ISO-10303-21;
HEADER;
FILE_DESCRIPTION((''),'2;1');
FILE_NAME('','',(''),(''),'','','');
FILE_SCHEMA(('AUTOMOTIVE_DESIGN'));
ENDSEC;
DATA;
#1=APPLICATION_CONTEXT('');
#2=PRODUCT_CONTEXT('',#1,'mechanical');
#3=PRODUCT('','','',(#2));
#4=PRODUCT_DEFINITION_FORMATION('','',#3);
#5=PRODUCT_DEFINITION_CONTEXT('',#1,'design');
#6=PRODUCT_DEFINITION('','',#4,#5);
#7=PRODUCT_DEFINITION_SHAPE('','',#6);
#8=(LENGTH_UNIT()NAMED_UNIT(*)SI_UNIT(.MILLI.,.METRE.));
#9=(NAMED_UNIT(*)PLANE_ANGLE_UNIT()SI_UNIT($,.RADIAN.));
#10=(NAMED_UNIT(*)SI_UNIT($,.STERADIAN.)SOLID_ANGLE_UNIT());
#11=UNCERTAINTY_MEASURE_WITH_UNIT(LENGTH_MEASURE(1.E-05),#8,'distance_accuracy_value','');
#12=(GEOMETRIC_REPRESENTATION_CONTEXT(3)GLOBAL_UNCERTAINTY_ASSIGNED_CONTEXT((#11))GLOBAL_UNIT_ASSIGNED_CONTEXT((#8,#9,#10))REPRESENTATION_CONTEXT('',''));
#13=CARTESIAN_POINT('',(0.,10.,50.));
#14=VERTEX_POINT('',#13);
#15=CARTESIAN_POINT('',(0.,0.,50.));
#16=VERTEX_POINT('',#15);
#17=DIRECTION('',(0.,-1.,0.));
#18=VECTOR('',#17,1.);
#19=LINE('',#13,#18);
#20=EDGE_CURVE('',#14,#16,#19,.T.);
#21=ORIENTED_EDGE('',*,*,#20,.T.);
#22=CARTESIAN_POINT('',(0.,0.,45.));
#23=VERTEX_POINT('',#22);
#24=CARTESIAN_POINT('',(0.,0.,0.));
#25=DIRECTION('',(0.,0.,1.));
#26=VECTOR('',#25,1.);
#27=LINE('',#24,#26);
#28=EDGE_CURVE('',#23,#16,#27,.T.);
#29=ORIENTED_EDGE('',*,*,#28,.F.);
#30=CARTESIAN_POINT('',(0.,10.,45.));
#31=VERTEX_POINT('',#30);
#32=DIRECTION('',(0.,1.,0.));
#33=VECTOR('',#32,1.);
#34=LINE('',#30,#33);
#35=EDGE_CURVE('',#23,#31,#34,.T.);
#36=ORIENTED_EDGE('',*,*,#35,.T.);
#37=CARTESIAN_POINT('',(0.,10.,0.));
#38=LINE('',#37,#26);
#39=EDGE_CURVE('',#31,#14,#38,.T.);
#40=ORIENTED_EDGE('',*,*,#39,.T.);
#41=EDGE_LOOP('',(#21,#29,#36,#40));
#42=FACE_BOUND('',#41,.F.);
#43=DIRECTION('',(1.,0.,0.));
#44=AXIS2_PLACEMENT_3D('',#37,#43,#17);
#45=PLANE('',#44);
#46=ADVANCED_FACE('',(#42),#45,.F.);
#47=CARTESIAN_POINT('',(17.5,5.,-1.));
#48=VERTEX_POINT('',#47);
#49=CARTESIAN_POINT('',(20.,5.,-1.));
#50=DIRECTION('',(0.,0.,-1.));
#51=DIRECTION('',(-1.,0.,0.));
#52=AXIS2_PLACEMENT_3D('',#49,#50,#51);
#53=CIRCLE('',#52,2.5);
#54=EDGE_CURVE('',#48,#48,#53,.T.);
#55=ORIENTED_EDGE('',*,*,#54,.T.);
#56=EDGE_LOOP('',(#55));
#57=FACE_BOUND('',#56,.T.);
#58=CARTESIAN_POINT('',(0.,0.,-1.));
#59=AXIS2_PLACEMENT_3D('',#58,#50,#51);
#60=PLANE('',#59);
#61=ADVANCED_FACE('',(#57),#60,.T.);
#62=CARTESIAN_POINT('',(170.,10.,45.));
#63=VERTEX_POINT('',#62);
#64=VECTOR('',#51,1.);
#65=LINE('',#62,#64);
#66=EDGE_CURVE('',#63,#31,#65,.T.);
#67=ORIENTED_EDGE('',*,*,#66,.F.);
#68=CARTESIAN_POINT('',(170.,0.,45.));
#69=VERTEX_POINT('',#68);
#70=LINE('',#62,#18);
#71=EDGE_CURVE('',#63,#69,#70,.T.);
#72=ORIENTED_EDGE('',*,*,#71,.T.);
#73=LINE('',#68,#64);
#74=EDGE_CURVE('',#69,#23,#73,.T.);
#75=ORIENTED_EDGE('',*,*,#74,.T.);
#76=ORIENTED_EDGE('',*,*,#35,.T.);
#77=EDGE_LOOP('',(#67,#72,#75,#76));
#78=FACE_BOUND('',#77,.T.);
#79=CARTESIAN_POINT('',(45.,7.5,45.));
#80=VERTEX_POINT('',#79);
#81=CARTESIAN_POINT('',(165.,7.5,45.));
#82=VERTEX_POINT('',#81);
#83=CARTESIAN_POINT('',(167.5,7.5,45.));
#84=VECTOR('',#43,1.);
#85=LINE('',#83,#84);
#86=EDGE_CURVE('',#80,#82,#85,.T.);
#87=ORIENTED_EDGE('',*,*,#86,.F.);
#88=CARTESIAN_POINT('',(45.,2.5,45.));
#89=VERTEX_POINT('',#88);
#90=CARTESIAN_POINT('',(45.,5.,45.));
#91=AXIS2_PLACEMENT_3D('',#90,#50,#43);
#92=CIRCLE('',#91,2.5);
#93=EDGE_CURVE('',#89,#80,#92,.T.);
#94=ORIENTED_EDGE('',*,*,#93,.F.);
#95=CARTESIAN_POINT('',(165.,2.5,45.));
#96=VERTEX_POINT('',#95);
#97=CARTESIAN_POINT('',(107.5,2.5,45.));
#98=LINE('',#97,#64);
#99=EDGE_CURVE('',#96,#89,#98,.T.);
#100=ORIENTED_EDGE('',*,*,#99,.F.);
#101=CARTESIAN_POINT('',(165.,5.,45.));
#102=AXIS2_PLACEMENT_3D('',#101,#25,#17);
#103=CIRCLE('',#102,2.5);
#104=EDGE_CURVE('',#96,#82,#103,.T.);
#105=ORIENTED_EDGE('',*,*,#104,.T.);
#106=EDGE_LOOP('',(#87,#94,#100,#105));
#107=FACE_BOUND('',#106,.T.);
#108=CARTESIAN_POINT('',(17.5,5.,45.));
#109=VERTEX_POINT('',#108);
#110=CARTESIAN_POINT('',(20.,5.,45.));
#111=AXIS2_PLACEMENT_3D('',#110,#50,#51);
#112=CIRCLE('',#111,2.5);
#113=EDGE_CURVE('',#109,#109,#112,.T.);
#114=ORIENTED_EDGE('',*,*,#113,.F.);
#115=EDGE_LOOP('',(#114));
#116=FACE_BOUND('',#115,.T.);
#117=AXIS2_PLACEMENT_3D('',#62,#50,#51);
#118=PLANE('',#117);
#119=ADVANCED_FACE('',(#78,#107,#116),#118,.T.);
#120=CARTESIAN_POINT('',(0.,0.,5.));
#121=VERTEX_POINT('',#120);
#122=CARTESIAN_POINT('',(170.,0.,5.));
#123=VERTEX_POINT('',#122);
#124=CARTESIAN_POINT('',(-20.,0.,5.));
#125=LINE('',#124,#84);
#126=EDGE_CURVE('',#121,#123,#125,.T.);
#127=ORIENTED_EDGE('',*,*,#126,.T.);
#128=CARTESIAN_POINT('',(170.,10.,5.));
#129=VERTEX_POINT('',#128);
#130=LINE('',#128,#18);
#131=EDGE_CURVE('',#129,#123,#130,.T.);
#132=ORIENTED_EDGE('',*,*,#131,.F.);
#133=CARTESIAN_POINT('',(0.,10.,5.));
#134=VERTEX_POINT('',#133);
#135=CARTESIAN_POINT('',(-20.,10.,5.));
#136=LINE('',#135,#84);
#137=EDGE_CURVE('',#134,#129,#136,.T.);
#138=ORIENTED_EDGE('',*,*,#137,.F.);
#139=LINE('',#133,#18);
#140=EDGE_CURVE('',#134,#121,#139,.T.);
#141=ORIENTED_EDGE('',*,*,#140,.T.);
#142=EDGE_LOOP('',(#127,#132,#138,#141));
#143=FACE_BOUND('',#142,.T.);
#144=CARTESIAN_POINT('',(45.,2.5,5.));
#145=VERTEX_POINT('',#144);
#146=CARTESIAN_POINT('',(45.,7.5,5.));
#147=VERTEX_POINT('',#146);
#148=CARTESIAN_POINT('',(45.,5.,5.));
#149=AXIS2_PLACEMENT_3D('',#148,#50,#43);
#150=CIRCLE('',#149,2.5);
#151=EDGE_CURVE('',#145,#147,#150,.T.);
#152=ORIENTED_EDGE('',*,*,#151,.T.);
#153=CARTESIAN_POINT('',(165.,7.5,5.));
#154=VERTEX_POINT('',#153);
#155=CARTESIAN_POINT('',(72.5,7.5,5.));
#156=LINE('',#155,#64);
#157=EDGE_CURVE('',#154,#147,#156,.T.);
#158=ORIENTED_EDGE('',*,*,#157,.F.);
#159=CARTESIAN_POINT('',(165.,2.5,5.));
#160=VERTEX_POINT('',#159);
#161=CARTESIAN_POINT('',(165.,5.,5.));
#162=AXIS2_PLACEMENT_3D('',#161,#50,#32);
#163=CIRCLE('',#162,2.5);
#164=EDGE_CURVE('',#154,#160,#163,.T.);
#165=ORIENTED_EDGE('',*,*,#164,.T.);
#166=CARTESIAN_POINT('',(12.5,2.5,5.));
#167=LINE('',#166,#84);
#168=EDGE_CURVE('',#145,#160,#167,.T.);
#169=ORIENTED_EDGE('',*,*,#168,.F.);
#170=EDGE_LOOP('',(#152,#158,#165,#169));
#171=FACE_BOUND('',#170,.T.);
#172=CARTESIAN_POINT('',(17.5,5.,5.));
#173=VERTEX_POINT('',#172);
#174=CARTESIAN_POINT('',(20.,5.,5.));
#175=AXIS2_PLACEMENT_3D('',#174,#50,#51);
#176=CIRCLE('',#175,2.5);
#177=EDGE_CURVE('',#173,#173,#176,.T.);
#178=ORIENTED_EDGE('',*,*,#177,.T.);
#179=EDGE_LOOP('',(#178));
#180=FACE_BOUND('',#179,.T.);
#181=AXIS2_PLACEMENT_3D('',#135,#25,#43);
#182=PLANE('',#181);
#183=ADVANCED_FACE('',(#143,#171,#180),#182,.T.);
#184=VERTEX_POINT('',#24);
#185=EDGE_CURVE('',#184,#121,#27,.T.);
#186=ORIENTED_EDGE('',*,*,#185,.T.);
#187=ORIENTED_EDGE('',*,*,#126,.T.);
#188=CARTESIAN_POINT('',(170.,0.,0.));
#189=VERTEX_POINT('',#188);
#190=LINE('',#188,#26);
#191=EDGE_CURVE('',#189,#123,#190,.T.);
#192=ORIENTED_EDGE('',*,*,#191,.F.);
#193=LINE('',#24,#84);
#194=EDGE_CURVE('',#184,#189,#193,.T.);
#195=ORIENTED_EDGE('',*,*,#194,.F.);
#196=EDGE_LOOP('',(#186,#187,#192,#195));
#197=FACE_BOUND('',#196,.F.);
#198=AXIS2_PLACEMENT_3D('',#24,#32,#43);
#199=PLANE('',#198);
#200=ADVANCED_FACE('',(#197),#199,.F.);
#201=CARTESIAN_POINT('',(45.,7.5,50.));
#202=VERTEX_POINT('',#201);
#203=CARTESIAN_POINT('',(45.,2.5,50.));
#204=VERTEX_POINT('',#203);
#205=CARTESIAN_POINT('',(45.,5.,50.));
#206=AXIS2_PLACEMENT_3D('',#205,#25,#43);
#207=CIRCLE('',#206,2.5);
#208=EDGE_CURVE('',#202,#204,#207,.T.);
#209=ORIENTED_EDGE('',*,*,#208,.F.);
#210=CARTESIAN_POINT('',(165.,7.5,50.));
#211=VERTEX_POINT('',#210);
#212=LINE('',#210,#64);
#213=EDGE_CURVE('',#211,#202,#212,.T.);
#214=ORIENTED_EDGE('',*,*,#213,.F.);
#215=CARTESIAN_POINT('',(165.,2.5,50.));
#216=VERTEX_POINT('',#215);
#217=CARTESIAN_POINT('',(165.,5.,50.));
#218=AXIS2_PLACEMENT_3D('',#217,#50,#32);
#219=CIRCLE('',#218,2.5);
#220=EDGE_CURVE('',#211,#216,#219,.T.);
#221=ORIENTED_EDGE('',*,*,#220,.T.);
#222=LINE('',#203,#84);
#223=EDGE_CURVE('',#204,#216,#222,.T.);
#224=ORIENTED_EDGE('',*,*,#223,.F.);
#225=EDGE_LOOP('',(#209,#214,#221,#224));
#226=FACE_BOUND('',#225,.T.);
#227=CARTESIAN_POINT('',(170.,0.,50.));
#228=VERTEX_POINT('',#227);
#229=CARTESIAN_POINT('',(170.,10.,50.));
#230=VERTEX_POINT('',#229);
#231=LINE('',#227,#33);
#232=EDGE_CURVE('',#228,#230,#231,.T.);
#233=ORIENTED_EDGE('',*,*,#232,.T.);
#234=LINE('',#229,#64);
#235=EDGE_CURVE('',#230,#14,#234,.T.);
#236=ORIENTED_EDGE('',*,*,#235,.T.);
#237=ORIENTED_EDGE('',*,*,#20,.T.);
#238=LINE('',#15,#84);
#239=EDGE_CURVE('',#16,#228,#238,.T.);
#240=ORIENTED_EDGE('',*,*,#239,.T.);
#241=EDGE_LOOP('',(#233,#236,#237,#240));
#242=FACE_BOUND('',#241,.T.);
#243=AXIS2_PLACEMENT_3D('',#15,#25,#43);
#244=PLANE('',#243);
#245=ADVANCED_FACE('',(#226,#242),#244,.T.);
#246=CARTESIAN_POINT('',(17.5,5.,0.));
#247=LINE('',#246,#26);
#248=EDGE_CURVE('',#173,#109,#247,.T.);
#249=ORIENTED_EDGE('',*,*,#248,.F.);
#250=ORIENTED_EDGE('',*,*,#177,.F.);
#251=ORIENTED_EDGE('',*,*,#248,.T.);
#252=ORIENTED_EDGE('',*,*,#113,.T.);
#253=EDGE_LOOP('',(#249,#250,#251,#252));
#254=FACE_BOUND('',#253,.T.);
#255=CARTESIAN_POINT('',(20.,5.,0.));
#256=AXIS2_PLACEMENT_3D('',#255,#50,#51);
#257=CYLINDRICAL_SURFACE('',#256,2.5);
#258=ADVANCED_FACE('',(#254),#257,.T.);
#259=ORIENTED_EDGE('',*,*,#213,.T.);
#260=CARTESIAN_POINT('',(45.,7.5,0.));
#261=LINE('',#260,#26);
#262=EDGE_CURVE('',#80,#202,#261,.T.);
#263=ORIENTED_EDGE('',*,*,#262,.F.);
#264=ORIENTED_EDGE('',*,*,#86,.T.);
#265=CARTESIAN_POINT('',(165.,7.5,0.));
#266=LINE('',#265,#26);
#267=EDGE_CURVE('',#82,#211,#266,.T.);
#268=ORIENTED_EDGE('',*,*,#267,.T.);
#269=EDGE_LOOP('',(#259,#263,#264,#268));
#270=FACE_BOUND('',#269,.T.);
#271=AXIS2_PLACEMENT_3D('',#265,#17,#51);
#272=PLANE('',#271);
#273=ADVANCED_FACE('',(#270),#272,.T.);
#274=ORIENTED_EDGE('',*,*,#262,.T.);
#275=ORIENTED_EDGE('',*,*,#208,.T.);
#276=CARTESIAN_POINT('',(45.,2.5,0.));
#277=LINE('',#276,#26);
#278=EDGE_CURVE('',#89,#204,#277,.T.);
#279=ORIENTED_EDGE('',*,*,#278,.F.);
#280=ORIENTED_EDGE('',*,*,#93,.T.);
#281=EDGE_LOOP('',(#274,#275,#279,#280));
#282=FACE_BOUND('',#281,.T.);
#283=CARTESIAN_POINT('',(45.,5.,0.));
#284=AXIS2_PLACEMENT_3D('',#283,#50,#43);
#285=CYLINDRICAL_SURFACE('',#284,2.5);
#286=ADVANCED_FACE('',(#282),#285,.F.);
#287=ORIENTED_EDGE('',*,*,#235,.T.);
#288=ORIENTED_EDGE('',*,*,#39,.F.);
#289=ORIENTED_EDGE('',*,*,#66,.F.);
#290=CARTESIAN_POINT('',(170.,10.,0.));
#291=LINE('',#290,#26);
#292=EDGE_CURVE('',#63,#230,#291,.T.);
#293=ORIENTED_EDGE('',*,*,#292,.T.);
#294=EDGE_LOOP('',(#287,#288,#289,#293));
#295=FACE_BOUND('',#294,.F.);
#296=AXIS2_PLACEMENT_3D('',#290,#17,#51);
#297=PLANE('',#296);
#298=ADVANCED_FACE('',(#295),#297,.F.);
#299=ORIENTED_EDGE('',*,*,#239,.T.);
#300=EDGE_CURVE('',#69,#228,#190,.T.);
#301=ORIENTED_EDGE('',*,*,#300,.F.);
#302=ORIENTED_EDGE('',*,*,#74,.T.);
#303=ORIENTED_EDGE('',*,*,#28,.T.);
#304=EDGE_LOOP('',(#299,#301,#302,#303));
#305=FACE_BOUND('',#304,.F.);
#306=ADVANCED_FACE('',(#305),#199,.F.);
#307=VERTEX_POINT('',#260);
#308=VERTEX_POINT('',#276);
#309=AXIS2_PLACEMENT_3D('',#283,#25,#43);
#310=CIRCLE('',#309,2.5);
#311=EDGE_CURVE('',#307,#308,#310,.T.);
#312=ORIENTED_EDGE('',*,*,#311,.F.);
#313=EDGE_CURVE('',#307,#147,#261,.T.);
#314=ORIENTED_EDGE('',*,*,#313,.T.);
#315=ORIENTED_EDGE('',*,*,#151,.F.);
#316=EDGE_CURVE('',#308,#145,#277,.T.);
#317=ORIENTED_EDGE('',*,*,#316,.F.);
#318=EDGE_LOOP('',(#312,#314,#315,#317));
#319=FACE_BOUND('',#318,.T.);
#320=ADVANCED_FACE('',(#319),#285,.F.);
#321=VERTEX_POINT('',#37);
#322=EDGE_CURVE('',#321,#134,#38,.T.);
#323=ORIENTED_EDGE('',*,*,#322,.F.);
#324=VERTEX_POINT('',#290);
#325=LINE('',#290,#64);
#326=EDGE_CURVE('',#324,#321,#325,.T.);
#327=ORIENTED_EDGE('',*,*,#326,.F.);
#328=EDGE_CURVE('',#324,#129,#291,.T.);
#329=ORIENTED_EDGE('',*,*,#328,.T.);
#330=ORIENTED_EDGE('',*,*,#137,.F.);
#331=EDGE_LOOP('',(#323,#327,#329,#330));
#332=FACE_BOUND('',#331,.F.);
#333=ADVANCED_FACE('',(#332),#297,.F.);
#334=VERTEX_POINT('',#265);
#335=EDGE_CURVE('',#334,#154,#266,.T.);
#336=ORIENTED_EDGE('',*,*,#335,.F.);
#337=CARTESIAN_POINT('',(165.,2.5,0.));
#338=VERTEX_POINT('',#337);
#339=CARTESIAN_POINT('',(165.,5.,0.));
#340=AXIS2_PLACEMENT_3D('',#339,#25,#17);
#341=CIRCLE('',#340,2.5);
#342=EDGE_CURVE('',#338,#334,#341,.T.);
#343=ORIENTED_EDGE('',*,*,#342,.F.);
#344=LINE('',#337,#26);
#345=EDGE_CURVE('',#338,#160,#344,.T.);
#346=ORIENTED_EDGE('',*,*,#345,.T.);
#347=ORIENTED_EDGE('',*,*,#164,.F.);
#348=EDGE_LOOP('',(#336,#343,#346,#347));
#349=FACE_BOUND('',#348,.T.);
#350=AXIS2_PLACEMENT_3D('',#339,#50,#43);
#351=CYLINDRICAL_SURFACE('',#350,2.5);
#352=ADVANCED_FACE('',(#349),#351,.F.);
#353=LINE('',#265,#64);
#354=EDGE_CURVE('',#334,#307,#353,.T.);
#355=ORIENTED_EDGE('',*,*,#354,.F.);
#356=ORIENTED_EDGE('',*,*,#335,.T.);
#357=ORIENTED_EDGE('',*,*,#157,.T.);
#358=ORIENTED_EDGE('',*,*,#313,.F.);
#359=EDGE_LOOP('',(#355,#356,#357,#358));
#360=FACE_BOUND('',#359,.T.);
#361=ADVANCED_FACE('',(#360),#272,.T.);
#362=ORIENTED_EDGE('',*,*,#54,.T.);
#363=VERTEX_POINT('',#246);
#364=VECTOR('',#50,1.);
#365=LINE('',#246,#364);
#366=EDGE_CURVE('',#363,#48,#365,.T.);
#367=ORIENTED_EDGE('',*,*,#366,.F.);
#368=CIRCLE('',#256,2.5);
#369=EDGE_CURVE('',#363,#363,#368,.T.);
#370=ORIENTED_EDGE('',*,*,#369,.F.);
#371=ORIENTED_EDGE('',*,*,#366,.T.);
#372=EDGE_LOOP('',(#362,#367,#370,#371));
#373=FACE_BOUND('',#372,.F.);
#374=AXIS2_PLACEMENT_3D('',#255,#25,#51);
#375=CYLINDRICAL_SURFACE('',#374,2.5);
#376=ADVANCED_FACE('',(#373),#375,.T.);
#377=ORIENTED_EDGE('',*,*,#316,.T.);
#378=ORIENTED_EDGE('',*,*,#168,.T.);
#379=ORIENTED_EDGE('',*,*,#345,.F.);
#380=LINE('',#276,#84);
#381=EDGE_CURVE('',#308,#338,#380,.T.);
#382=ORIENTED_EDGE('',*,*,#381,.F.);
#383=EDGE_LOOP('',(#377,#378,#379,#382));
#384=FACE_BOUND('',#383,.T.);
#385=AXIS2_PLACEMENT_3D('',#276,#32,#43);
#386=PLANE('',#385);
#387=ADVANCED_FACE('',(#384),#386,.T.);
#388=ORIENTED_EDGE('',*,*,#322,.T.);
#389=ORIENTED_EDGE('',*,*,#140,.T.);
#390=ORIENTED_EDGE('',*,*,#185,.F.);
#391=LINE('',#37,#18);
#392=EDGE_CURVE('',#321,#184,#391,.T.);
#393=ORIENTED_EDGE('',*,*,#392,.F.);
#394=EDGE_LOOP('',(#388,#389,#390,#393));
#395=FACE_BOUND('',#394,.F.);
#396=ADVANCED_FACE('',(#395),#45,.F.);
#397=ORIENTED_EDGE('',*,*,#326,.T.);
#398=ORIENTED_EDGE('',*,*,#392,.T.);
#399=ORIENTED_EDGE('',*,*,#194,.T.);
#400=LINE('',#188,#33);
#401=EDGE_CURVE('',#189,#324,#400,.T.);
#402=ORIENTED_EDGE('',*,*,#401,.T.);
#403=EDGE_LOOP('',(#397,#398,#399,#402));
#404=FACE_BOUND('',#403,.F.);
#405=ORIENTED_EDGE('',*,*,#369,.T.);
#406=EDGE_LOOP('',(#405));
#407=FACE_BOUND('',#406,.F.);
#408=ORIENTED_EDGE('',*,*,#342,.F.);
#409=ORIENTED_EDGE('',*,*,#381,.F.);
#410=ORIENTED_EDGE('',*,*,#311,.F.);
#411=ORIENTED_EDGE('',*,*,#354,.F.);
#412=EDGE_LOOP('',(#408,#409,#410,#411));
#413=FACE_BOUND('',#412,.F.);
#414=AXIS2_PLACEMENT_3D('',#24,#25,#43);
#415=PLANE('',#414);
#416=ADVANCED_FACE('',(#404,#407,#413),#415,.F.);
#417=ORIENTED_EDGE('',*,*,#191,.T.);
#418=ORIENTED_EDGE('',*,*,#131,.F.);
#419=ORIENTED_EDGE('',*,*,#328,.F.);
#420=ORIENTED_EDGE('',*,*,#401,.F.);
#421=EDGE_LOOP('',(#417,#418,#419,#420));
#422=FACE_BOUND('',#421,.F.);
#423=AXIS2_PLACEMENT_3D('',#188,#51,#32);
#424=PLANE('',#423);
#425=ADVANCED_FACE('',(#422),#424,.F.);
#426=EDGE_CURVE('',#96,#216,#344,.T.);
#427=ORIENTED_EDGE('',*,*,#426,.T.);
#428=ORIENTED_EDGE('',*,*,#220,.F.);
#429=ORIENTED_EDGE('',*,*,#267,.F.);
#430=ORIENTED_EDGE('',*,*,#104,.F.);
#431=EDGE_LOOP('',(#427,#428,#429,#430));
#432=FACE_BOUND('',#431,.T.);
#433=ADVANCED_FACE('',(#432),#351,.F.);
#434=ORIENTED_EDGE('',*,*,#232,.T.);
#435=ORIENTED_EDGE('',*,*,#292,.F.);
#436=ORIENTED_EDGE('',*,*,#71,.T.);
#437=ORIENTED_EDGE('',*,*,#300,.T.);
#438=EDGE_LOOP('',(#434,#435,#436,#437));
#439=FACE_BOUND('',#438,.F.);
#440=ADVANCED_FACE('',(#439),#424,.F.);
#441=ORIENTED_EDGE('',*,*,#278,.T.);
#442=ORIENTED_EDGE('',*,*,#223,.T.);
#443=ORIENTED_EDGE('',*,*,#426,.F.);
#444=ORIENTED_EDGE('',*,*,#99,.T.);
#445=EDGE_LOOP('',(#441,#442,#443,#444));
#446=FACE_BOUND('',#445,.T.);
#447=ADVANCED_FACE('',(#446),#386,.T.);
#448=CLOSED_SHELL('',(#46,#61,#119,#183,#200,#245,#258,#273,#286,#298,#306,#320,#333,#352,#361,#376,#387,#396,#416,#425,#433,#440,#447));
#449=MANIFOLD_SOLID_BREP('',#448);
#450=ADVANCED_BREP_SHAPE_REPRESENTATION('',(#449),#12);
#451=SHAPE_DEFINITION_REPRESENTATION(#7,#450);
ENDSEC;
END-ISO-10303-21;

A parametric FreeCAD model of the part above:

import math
import FreeCAD as App
import Part
import Sketcher
from FreeCAD import Vector
Q = App.Units.Quantity

doc = App.newDocument("Part")
body = doc.addObject("PartDesign::Body", "Body")
body.AllowCompound = True

# Sketch on XY plane
sketch1 = doc.addObject("Sketcher::SketchObject", "Sketch")
body.addObject(sketch1)
sketch1.AttachmentSupport = (doc.XY_Plane, [""])
sketch1.MapMode = "FlatFace"
sketch1.addGeometry([
    Part.LineSegment(Vector(0, 10, 0), Vector(0, 0, 0)),  # 0
    Part.LineSegment(Vector(0, 0, 0), Vector(170, 0, 0)),  # 1
    Part.LineSegment(Vector(170, 0, 0), Vector(170, 10, 0)),  # 2
    Part.LineSegment(Vector(170, 10, 0), Vector(0, 10, 0)),  # 3
    Part.ArcOfCircle(Part.Circle(Vector(165, 5, 0), Vector(0, 0, 1), 2.5), math.radians(-90), math.radians(90)),  # 4
    Part.LineSegment(Vector(165, 2.5, 0), Vector(45, 2.5, 0)),  # 5
    Part.ArcOfCircle(Part.Circle(Vector(45, 5, 0), Vector(0, 0, 1), 2.5), math.radians(90), math.radians(270)),  # 6
    Part.LineSegment(Vector(45, 7.5, 0), Vector(165, 7.5, 0)),  # 7
], False)
sketch1.addConstraint([
    Sketcher.Constraint("Coincident", 0, 2, 1, 1),
    Sketcher.Constraint("Coincident", 1, 2, 2, 1),
    Sketcher.Constraint("Coincident", 2, 2, 3, 1),
    Sketcher.Constraint("Coincident", 3, 2, 0, 1),
    Sketcher.Constraint("Tangent", 4, 1, 5, 1),
    Sketcher.Constraint("Tangent", 5, 2, 6, 2),
    Sketcher.Constraint("Tangent", 6, 1, 7, 1),
    Sketcher.Constraint("Tangent", 7, 2, 4, 2),
    Sketcher.Constraint("Vertical", 0),
    Sketcher.Constraint("Horizontal", 1),
    Sketcher.Constraint("Vertical", 2),
    Sketcher.Constraint("Horizontal", 3),
    Sketcher.Constraint("Horizontal", 5),
    Sketcher.Constraint("Horizontal", 7),
    Sketcher.Constraint("Coincident", 0, 2, -1, 1),
    Sketcher.Constraint("Radius", 4, Q("2.5 mm")),
    Sketcher.Constraint("DistanceX", 1, 1, 1, 2, Q("170 mm")),
    Sketcher.Constraint("DistanceX", 5, 2, 5, 1, Q("120 mm")),
    Sketcher.Constraint("DistanceY", 0, 2, 0, 1, Q("10 mm")),
    Sketcher.Constraint("DistanceY", -1, 1, 4, 3, Q("5 mm")),
    Sketcher.Constraint("DistanceX", 4, 3, 1, 2, Q("5 mm")),
])
pad1 = doc.addObject("PartDesign::Pad", "Pad")
body.addObject(pad1)
pad1.Profile = sketch1
pad1.Length = 50

# Sketch on XZ plane
sketch2 = doc.addObject("Sketcher::SketchObject", "Sketch001")
body.addObject(sketch2)
sketch2.AttachmentSupport = (doc.XZ_Plane, [""])
sketch2.MapMode = "FlatFace"
sketch2.AttachmentOffset = App.Placement(Vector(0, 0, -10), App.Rotation())
sketch2.addGeometry([
    Part.LineSegment(Vector(170, 45, 0), Vector(170, 5, 0)),
    Part.LineSegment(Vector(170, 5, 0), Vector(-20, 5, 0)),
    Part.LineSegment(Vector(-20, 5, 0), Vector(-20, 45, 0)),
    Part.LineSegment(Vector(-20, 45, 0), Vector(170, 45, 0)),
], False)
sketch2.addConstraint([
    Sketcher.Constraint("Coincident", 0, 2, 1, 1),
    Sketcher.Constraint("Coincident", 1, 2, 2, 1),
    Sketcher.Constraint("Coincident", 2, 2, 3, 1),
    Sketcher.Constraint("Coincident", 3, 2, 0, 1),
    Sketcher.Constraint("Vertical", 0),
    Sketcher.Constraint("Horizontal", 1),
    Sketcher.Constraint("Vertical", 2),
    Sketcher.Constraint("Horizontal", 3),
    Sketcher.Constraint("DistanceX", 1, 2, 1, 1, Q("190 mm")),
    Sketcher.Constraint("DistanceY", -1, 1, 0, 2, Q("5 mm")),
    Sketcher.Constraint("DistanceY", 0, 2, 0, 1, Q("40 mm")),
    Sketcher.Constraint("DistanceX", -1, 1, 0, 2, Q("170 mm")),
])
pocket1 = doc.addObject("PartDesign::Pocket", "Pocket")
body.addObject(pocket1)
pocket1.Profile = sketch2
pocket1.Length = 10
pocket1.Reversed = True

# Sketch on XY plane
sketch3 = doc.addObject("Sketcher::SketchObject", "Sketch002")
body.addObject(sketch3)
sketch3.AttachmentSupport = (doc.XY_Plane, [""])
sketch3.MapMode = "FlatFace"
sketch3.addGeometry(Part.Circle(Vector(20, 5, 0), Vector(0, 0, 1), 2.5), False)
sketch3.addConstraint([
    Sketcher.Constraint("Diameter", 0, Q("5 mm")),
    Sketcher.Constraint("DistanceX", -1, 1, 0, 3, Q("20 mm")),
    Sketcher.Constraint("DistanceY", -1, 1, 0, 3, Q("5 mm")),
])
pad2 = doc.addObject("PartDesign::Pad", "Pad001")
body.addObject(pad2)
pad2.Profile = sketch3
pad2.Type = "TwoLengths"
pad2.Length = 1
pad2.Length2 = 50
pad2.Reversed = True

doc.recompute()
